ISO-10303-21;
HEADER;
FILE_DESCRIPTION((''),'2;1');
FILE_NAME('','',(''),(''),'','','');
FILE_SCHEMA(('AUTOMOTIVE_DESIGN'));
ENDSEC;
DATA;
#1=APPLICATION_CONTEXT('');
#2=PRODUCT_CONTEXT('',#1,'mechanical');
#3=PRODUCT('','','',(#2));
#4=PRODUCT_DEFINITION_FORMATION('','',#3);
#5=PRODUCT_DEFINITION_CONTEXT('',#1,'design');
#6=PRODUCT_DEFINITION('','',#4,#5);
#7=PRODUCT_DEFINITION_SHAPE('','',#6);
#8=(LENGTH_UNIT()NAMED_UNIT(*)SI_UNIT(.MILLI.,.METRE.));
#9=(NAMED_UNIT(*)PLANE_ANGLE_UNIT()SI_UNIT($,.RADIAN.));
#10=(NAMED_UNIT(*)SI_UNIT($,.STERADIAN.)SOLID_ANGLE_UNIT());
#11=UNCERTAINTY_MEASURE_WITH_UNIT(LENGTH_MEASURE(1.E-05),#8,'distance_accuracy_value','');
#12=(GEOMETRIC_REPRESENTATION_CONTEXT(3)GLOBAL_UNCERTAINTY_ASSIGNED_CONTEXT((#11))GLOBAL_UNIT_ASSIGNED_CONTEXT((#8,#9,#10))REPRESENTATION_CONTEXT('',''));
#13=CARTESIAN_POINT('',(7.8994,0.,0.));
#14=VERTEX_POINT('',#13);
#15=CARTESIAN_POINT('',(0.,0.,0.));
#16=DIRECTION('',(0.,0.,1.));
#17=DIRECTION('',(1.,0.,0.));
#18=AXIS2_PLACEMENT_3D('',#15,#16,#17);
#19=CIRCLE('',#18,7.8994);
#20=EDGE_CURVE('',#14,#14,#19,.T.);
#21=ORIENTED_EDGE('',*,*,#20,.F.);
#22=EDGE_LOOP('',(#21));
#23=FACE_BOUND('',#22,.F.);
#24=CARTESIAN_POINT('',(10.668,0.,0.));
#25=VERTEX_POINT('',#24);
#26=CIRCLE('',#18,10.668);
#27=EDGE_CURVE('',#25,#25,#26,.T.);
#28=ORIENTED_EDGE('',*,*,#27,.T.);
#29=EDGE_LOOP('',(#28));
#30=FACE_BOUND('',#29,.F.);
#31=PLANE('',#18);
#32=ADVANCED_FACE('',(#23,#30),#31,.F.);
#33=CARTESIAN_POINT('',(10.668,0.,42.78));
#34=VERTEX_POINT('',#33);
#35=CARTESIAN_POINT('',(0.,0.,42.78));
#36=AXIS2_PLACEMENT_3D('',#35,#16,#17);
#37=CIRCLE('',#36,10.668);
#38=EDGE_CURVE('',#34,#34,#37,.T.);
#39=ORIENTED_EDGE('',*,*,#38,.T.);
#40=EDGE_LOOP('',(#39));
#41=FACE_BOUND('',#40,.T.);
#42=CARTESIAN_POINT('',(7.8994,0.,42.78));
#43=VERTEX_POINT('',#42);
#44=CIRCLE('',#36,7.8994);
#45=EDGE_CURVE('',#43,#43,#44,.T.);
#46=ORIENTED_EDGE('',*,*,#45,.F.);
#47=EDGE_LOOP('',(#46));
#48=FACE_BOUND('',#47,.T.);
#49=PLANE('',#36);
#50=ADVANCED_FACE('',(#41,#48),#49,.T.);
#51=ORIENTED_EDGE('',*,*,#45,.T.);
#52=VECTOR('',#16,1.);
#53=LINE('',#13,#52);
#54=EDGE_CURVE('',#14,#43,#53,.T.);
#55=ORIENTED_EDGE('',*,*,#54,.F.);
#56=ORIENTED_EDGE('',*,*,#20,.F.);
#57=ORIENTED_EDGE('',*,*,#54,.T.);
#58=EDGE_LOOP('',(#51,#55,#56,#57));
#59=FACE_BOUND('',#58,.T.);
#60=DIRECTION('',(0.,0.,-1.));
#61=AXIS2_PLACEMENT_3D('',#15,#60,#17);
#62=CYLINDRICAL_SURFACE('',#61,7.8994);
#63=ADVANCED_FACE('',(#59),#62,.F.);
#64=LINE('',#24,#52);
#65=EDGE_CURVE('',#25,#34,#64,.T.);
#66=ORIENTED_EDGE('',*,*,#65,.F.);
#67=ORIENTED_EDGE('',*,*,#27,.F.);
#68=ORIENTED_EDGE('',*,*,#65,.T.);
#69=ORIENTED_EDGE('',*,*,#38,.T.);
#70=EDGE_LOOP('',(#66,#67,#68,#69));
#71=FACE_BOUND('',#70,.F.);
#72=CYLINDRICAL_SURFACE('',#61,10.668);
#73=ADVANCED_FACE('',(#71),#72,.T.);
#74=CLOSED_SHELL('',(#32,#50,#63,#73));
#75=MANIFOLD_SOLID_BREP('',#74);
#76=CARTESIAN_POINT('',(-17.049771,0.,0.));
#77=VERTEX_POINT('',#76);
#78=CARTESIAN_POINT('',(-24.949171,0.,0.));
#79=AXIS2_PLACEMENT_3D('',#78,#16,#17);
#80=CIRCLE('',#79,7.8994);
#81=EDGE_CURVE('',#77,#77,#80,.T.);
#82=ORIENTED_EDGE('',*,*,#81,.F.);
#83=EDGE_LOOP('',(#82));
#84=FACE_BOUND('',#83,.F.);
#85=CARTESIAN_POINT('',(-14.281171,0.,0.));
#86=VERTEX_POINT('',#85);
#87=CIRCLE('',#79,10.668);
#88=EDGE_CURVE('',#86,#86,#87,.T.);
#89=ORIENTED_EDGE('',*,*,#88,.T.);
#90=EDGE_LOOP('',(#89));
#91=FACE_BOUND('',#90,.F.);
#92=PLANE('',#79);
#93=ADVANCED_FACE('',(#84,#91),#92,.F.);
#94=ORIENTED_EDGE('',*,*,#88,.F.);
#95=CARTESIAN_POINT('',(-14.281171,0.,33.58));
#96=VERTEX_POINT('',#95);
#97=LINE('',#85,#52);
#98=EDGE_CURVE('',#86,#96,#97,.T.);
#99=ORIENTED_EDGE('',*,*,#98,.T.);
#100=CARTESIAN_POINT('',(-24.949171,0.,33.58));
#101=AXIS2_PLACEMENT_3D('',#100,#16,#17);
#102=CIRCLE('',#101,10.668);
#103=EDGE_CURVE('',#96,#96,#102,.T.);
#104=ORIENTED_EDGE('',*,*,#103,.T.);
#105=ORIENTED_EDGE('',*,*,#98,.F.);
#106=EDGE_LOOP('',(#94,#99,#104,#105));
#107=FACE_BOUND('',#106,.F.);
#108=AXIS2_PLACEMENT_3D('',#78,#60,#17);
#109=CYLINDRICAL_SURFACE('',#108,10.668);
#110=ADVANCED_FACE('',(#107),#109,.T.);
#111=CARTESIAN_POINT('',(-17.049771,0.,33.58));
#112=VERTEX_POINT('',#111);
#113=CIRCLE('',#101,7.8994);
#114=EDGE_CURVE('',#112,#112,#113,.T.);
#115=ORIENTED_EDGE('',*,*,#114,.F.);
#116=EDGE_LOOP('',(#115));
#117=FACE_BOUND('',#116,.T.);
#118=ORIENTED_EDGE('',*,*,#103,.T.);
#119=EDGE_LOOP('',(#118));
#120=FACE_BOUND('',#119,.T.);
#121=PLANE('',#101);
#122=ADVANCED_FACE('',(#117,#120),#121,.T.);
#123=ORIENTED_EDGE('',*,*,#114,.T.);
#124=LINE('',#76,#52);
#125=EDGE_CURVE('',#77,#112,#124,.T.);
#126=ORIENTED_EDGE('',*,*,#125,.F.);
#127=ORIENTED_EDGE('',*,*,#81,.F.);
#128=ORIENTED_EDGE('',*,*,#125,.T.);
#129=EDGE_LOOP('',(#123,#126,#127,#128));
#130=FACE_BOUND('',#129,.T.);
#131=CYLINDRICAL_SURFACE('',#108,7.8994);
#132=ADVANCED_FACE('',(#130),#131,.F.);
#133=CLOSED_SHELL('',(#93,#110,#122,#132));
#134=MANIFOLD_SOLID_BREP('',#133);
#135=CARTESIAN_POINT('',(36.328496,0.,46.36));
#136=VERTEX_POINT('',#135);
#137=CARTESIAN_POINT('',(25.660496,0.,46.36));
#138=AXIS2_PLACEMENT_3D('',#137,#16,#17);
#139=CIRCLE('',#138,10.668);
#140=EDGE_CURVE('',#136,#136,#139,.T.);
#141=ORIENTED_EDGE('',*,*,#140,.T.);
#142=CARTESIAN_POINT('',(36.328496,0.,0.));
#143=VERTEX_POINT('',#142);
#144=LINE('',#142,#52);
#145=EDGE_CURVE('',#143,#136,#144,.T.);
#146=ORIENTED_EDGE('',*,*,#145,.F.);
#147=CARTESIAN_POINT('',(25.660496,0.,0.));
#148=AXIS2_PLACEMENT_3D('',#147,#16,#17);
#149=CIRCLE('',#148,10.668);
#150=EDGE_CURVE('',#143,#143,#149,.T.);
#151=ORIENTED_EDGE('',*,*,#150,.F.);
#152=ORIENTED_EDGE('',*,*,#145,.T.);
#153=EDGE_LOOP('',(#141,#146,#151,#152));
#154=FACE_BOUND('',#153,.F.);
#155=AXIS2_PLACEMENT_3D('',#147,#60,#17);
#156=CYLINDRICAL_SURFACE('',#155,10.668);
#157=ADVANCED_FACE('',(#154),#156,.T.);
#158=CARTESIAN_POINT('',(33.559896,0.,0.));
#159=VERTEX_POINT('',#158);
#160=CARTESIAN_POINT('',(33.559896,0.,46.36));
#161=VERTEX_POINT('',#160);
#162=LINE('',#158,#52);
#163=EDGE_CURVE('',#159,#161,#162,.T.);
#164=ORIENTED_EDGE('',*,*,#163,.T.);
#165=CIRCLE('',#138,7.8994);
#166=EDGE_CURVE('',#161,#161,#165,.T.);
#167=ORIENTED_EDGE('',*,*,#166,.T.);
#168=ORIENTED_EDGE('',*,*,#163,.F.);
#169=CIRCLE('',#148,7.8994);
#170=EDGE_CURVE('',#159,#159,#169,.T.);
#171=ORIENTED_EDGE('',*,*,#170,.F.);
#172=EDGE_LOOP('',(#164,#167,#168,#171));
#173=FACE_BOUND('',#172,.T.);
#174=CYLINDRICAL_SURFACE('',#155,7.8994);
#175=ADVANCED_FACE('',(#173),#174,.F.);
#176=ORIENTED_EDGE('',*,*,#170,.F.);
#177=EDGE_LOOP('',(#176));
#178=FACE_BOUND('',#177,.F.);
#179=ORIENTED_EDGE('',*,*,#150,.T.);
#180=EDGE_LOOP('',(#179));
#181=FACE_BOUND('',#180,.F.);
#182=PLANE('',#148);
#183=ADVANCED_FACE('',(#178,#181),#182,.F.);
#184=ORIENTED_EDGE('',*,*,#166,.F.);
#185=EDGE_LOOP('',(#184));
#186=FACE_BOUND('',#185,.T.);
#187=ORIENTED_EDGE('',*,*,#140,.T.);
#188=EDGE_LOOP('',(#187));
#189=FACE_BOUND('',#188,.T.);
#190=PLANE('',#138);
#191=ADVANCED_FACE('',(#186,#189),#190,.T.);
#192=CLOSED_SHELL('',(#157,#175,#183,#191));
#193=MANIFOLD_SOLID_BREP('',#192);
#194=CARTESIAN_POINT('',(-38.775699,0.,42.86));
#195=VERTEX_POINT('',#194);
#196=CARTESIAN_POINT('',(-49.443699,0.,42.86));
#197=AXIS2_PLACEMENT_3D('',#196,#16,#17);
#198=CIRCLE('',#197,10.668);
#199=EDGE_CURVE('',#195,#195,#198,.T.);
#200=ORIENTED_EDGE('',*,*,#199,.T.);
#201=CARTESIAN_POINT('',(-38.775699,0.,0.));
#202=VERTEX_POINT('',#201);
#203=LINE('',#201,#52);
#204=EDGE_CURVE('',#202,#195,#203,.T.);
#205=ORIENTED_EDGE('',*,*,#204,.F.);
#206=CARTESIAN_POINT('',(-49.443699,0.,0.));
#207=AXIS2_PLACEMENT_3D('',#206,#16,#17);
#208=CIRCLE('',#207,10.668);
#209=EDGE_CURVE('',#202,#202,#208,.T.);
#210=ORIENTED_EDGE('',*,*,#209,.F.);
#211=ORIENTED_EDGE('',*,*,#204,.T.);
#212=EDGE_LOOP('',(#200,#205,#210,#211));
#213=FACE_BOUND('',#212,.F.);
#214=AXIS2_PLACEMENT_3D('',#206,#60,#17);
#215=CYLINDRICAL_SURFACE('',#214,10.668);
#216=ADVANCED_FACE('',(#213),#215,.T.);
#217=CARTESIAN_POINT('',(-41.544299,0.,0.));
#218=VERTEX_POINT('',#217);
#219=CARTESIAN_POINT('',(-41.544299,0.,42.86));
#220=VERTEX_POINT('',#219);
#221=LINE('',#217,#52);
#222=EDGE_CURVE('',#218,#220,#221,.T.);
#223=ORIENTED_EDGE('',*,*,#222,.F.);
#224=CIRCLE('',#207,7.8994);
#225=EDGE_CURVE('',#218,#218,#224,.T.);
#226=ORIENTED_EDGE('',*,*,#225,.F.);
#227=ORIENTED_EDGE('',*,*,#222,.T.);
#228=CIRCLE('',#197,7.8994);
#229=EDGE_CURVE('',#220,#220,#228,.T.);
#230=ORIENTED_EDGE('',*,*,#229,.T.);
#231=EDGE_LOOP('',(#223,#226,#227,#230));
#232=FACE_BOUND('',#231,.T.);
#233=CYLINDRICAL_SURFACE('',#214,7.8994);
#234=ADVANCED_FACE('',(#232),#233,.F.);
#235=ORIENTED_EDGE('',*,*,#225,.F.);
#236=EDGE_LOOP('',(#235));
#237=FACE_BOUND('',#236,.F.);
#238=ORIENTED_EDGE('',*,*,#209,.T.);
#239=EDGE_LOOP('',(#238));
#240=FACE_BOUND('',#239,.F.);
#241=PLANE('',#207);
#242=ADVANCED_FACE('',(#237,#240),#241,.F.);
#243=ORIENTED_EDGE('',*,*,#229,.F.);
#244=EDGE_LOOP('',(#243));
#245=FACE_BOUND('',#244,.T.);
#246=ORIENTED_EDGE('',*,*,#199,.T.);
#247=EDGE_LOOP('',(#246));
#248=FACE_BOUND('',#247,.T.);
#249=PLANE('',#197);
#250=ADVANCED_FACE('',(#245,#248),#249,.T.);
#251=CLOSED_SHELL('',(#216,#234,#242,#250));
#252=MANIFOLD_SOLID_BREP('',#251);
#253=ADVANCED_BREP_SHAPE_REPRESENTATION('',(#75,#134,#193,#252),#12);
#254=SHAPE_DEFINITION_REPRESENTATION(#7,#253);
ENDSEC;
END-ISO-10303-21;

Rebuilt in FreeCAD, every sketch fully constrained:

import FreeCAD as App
import Part
import Sketcher
from FreeCAD import Vector
Q = App.Units.Quantity

doc = App.newDocument("Part")
body = doc.addObject("PartDesign::Body", "Body")

# Sketch on XY plane
sketch1 = doc.addObject("Sketcher::SketchObject", "Sketch")
body.addObject(sketch1)
sketch1.AttachmentSupport = (doc.XY_Plane, [""])
sketch1.MapMode = "FlatFace"
sketch1.addGeometry([
    Part.Circle(Vector(0, 0, 0), Vector(0, 0, 1), 10.668),
    Part.Circle(Vector(0, 0, 0), Vector(0, 0, 1), 7.8994),
], False)
sketch1.addConstraint([
    Sketcher.Constraint("Coincident", 0, 3, -1, 1),
    Sketcher.Constraint("Coincident", 1, 3, -1, 1),
    Sketcher.Constraint("Diameter", 0, Q("0.84 in")),
    Sketcher.Constraint("Diameter", 1, Q("0.622 in")),
])
pad1 = doc.addObject("PartDesign::Pad", "Pad")
body.addObject(pad1)
pad1.Profile = sketch1
pad1.Length = 42.78
body2 = doc.addObject("PartDesign::Body", "Body001")

# Sketch on XY plane
sketch2 = doc.addObject("Sketcher::SketchObject", "Sketch001")
body2.addObject(sketch2)
sketch2.AttachmentSupport = (doc.getObject("XY_Plane001"), [""])
sketch2.MapMode = "FlatFace"
sketch2.addGeometry([
    Part.Circle(Vector(-24.949171, 0, 0), Vector(0, 0, 1), 10.668),
    Part.Circle(Vector(-24.949171, 0, 0), Vector(0, 0, 1), 7.8994),
], False)
sketch2.addConstraint([
    Sketcher.Constraint("Coincident", 1, 3, 0, 3),
    Sketcher.Constraint("PointOnObject", 0, 3, -1),
    Sketcher.Constraint("Diameter", 0, Q("0.84 in")),
    Sketcher.Constraint("Diameter", 1, Q("0.622 in")),
    Sketcher.Constraint("DistanceX", 0, 3, -1, 1, 24.949171),
])
pad2 = doc.addObject("PartDesign::Pad", "Pad001")
body2.addObject(pad2)
pad2.Profile = sketch2
pad2.Length = 33.58
body3 = doc.addObject("PartDesign::Body", "Body002")

# Sketch on XY plane
sketch3 = doc.addObject("Sketcher::SketchObject", "Sketch002")
body3.addObject(sketch3)
sketch3.AttachmentSupport = (doc.getObject("XY_Plane002"), [""])
sketch3.MapMode = "FlatFace"
sketch3.addGeometry([
    Part.Circle(Vector(-49.443699, 0, 0), Vector(0, 0, 1), 10.668),
    Part.Circle(Vector(-49.443699, 0, 0), Vector(0, 0, 1), 7.8994),
], False)
sketch3.addConstraint([
    Sketcher.Constraint("Coincident", 1, 3, 0, 3),
    Sketcher.Constraint("PointOnObject", 0, 3, -1),
    Sketcher.Constraint("Diameter", 0, Q("0.84 in")),
    Sketcher.Constraint("Diameter", 1, Q("0.622 in")),
    Sketcher.Constraint("DistanceX", 0, 3, -1, 1, 49.443699),
])
pad3 = doc.addObject("PartDesign::Pad", "Pad002")
body3.addObject(pad3)
pad3.Profile = sketch3
pad3.Length = 42.86
body4 = doc.addObject("PartDesign::Body", "Body003")

# Sketch on XY plane
sketch4 = doc.addObject("Sketcher::SketchObject", "Sketch003")
body4.addObject(sketch4)
sketch4.AttachmentSupport = (doc.getObject("XY_Plane003"), [""])
sketch4.MapMode = "FlatFace"
sketch4.addGeometry([
    Part.Circle(Vector(25.660496, 0, 0), Vector(0, 0, 1), 10.668),
    Part.Circle(Vector(25.660496, 0, 0), Vector(0, 0, 1), 7.8994),
], False)
sketch4.addConstraint([
    Sketcher.Constraint("Coincident", 1, 3, 0, 3),
    Sketcher.Constraint("PointOnObject", 0, 3, -1),
    Sketcher.Constraint("Diameter", 0, Q("0.84 in")),
    Sketcher.Constraint("Diameter", 1, Q("0.622 in")),
    Sketcher.Constraint("DistanceX", -1, 1, 0, 3, 25.660496),
])
pad4 = doc.addObject("PartDesign::Pad", "Pad003")
body4.addObject(pad4)
pad4.Profile = sketch4
pad4.Length = 46.36

doc.recompute()
